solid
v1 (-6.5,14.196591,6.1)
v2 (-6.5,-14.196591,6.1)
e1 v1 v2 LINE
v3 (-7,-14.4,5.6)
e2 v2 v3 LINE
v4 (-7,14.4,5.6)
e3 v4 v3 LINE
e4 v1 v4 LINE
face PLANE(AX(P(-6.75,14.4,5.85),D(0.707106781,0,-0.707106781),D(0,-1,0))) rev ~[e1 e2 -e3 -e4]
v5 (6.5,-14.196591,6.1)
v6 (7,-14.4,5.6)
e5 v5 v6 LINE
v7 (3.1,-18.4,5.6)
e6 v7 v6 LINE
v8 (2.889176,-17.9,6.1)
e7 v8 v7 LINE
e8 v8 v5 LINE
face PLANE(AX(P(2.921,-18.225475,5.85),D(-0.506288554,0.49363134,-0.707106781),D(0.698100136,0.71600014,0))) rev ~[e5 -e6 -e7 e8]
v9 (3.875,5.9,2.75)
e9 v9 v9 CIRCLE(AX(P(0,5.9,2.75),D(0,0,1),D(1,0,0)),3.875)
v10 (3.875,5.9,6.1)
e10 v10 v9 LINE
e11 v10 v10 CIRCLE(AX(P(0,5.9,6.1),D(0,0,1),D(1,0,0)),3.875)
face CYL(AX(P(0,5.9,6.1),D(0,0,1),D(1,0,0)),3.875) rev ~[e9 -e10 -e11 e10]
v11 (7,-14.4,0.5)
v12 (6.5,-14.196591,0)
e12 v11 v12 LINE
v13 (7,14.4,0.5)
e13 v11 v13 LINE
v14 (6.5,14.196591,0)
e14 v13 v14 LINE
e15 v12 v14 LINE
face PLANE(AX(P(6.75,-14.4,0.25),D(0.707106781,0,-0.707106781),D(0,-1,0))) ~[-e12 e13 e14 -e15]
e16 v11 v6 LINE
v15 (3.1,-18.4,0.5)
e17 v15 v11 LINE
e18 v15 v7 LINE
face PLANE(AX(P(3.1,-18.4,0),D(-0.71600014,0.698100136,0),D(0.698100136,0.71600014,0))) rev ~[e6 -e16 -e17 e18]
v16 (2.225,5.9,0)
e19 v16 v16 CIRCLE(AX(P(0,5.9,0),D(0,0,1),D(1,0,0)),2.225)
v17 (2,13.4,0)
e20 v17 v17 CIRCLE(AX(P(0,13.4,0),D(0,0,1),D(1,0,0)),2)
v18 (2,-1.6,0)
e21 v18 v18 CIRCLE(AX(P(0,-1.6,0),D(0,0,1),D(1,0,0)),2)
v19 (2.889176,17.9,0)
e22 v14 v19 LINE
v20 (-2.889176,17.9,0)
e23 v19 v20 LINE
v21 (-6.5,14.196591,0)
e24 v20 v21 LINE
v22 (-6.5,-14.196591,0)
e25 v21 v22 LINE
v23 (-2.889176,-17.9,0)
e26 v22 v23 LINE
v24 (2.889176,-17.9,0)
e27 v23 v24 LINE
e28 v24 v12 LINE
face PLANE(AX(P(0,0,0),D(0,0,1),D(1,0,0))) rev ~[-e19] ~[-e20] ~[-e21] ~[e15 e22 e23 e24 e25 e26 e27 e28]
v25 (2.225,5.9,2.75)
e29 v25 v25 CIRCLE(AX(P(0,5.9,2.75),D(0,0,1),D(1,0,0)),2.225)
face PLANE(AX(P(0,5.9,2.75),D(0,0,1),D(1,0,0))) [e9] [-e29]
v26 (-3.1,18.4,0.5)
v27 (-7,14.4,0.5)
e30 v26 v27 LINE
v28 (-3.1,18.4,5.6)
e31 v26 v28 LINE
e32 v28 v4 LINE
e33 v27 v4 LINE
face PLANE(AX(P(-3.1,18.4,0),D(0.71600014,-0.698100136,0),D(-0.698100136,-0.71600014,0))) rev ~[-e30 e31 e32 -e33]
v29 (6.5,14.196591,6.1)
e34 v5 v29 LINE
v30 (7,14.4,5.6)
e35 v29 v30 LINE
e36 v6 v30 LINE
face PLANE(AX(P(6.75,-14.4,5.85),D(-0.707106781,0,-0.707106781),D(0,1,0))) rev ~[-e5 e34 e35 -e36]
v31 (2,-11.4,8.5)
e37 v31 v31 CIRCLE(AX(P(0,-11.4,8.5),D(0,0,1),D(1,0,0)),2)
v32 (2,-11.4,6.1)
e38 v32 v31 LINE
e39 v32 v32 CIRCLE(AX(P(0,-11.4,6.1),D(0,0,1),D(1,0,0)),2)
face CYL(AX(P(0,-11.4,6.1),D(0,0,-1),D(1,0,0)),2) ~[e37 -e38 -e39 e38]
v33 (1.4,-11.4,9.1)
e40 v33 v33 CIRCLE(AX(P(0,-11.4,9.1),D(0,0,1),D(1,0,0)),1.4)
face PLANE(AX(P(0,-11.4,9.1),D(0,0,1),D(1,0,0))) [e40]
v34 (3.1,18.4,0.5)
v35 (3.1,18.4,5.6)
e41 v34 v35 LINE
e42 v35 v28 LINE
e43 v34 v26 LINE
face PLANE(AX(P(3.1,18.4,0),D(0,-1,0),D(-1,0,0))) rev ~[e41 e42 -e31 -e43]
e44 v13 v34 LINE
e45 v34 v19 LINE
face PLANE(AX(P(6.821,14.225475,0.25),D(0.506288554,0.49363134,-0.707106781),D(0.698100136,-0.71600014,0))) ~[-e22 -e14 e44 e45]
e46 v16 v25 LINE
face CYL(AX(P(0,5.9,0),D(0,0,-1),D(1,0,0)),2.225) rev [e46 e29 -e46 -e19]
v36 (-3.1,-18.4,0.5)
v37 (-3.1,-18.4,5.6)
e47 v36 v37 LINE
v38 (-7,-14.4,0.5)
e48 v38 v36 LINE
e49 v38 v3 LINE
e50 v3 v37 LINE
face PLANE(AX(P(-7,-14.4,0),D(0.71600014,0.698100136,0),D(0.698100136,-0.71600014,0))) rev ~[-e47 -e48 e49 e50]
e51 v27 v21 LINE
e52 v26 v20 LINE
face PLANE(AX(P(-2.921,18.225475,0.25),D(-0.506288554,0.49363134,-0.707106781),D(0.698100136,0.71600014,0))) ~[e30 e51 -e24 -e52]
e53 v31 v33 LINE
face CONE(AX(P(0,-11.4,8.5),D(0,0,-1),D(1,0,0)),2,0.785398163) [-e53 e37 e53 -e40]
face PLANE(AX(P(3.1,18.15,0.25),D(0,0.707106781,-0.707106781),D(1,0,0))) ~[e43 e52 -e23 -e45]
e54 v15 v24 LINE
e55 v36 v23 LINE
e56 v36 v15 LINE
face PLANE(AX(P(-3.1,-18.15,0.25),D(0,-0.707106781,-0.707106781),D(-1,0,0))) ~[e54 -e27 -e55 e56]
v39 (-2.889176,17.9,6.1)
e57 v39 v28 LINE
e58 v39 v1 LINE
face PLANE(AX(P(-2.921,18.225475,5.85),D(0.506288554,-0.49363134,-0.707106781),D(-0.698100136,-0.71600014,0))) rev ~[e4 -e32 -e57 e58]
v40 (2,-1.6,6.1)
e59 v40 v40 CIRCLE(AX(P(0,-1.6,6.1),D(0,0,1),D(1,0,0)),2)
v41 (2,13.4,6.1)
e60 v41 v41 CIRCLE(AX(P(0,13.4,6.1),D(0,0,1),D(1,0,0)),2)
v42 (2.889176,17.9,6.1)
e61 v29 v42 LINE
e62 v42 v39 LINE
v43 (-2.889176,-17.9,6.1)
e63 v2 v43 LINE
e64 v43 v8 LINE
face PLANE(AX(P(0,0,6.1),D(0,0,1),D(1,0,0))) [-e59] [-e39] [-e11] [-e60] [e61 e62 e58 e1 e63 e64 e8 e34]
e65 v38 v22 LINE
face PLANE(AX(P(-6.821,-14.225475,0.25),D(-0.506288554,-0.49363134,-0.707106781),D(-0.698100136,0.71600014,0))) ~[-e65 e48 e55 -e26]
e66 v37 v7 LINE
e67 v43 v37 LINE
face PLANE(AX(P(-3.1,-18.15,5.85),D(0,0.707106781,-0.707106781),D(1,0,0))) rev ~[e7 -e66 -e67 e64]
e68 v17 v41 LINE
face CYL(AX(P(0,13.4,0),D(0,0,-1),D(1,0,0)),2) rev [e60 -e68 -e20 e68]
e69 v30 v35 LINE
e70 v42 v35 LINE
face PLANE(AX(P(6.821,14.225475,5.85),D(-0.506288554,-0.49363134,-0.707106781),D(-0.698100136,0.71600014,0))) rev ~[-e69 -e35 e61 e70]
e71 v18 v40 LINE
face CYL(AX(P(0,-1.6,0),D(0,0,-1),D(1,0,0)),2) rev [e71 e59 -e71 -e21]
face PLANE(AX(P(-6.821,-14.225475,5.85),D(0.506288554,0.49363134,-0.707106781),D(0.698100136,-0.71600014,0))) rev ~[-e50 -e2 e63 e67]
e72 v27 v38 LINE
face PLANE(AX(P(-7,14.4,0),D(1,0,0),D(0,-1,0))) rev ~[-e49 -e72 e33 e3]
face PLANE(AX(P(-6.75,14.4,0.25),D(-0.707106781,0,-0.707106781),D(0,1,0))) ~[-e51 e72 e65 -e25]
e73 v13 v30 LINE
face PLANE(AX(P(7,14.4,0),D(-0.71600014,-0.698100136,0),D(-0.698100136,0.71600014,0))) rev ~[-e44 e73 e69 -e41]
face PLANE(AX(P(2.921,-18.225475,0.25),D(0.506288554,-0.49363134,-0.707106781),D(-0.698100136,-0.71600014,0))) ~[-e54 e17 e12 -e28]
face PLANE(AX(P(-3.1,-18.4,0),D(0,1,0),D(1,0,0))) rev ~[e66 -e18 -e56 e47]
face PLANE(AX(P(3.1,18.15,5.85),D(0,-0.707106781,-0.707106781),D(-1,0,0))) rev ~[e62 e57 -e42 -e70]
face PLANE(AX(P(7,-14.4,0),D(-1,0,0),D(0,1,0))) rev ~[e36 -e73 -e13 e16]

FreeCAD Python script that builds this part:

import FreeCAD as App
import Part
import Sketcher

V = App.Vector
Q = App.Units.Quantity


def edges_at(feature, points):
    """Names of the edges that pass closest to the given points."""
    edges = feature.Shape.Edges
    near = lambda p: min(range(len(edges)), key=lambda i: edges[i].distToShape(Part.Vertex(*p))[0])
    return sorted({f"Edge{near(p) + 1}" for p in points})


def add_polygon(sketch, points):
    """Adds a closed chain of lines whose ends are joined by coincident constraints."""
    first, n = sketch.GeometryCount, len(points)
    for a, b in zip(points, points[1:] + points[:1]):
        sketch.addGeometry(Part.LineSegment(App.Vector(*a, 0), App.Vector(*b, 0)), False)
    for i in range(n):
        sketch.addConstraint(Sketcher.Constraint("Coincident", first + i, 2, first + (i + 1) % n, 1))

doc = App.newDocument("Part")
body = doc.addObject("PartDesign::Body", "Body")

# Sketch on XY plane
sketch1 = body.newObject("Sketcher::SketchObject", "Sketch")
sketch1.AttachmentSupport = (doc.getObject("XY_Plane"), [""])
sketch1.MapMode = "FlatFace"
add_polygon(sketch1, [(-7, 14.4), (-7, -14.4), (-3.1, -18.4), (3.1, -18.4), (7, -14.4), (7, 14.4), (3.1, 18.4), (-3.1, 18.4)])  # lines 0-7
sketch1.addGeometry(Part.Circle(V(0, -1.6, 0), V(0, 0, 1), 2), False)  # 8
sketch1.addGeometry(Part.Circle(V(0, 5.9, 0), V(0, 0, 1), 2.225), False)  # 9
sketch1.addGeometry(Part.Circle(V(0, 13.4, 0), V(0, 0, 1), 2), False)  # 10
sketch1.addConstraint(Sketcher.Constraint("Vertical", 0))
sketch1.addConstraint(Sketcher.Constraint("Horizontal", 2))
sketch1.addConstraint(Sketcher.Constraint("Vertical", 4))
sketch1.addConstraint(Sketcher.Constraint("Horizontal", 6))
sketch1.addConstraint(Sketcher.Constraint("Equal", 8, 10))
sketch1.addConstraint(Sketcher.Constraint("Symmetric", 0, 2, 4, 2, -1, 1))
sketch1.addConstraint(Sketcher.Constraint("Symmetric", 1, 2, 5, 2, -1, 1))
sketch1.addConstraint(Sketcher.Constraint("PointOnObject", 8, 3, -2))
sketch1.addConstraint(Sketcher.Constraint("PointOnObject", 9, 3, -2))
sketch1.addConstraint(Sketcher.Constraint("PointOnObject", 10, 3, -2))
sketch1.addConstraint(Sketcher.Constraint("Parallel", 3, 7))
sketch1.addConstraint(Sketcher.Constraint("Horizontal", 0, 2, 3, 2))
sketch1.addConstraint(Sketcher.Constraint("Horizontal", 4, 2, 7, 2))
sketch1.addConstraint(Sketcher.Constraint("Vertical", 2, 2, 5, 2))
sketch1.addConstraint(Sketcher.Constraint("Diameter", 8, Q("4 mm")))
sketch1.addConstraint(Sketcher.Constraint("Diameter", 9, Q("4.45 mm")))
sketch1.addConstraint(Sketcher.Constraint("DistanceX", 2, 1, 2, 2, Q("6.2 mm")))
sketch1.addConstraint(Sketcher.Constraint("DistanceY", 0, 2, 0, 1, Q("28.8 mm")))
sketch1.addConstraint(Sketcher.Constraint("DistanceX", 0, 2, -1, 1, Q("7 mm")))
sketch1.addConstraint(Sketcher.Constraint("DistanceY", 8, 3, 10, 3, Q("15 mm")))
sketch1.addConstraint(Sketcher.Constraint("DistanceY", 1, 2, 0, 2, Q("4 mm")))
sketch1.addConstraint(Sketcher.Constraint("DistanceY", 10, 3, 4, 2, Q("1 mm")))
sketch1.addConstraint(Sketcher.Constraint("DistanceY", -1, 1, 9, 3, Q("5.9 mm")))
pad1 = body.newObject("PartDesign::Pad", "Pad")
pad1.Profile = sketch1
pad1.Length = 6.1

# Sketch on XY plane
sketch2 = body.newObject("Sketcher::SketchObject", "Sketch001")
sketch2.AttachmentSupport = (doc.getObject("XY_Plane"), [""])
sketch2.MapMode = "FlatFace"
sketch2.AttachmentOffset = App.Placement(V(0, 0, 6.1), App.Rotation())
sketch2.addGeometry(Part.Circle(V(0, 5.9, 0), V(0, 0, 1), 3.875), False)
sketch2.addGeometry(Part.Circle(V(0, 5.9, 0), V(0, 0, 1), 2.225), False)
sketch2.addConstraint(Sketcher.Constraint("Coincident", 1, 3, 0, 3))
sketch2.addConstraint(Sketcher.Constraint("PointOnObject", 0, 3, -2))
sketch2.addConstraint(Sketcher.Constraint("Diameter", 0, Q("7.75 mm")))
sketch2.addConstraint(Sketcher.Constraint("Diameter", 1, Q("4.45 mm")))
sketch2.addConstraint(Sketcher.Constraint("DistanceY", -1, 1, 0, 3, Q("5.9 mm")))
pocket1 = body.newObject("PartDesign::Pocket", "Pocket")
pocket1.Profile = sketch2
pocket1.Length = 3.35

# Sketch on XY plane
sketch3 = body.newObject("Sketcher::SketchObject", "Sketch002")
sketch3.AttachmentSupport = (doc.getObject("XY_Plane"), [""])
sketch3.MapMode = "FlatFace"
sketch3.AttachmentOffset = App.Placement(V(0, 0, 6.1), App.Rotation())
sketch3.addGeometry(Part.Circle(V(0, -11.4, 0), V(0, 0, 1), 2), False)
sketch3.addConstraint(Sketcher.Constraint("PointOnObject", 0, 3, -2))
sketch3.addConstraint(Sketcher.Constraint("Diameter", 0, Q("4 mm")))
sketch3.addConstraint(Sketcher.Constraint("DistanceY", 0, 3, -1, 1, Q("11.4 mm")))
pad2 = body.newObject("PartDesign::Pad", "Pad001")
pad2.Profile = sketch3
pad2.Length = 3
doc.recompute()

chamfer = body.newObject("PartDesign::Chamfer", "Chamfer")
chamfer.Base = (pad2, edges_at(pad2, [(-2, -11.4, 9.1)]))
chamfer.Size = 0.6
doc.recompute()

chamfer2 = body.newObject("PartDesign::Chamfer", "Chamfer001")
chamfer2.Base = (chamfer, edges_at(chamfer, [
    (-7, 0, 0),
    (-5.05, -16.4, 0),
    (0, -18.4, 0),
    (5.05, -16.4, 0),
    (7, 0, 0),
    (5.05, 16.4, 0),
    (0, 18.4, 0),
    (-5.05, 16.4, 0),
    (5.05, -16.4, 6.1),
    (0, -18.4, 6.1),
    (-5.05, -16.4, 6.1),
    (-7, 0, 6.1),
    (-5.05, 16.4, 6.1),
    (0, 18.4, 6.1),
    (5.05, 16.4, 6.1),
    (7, 0, 6.1),
]))
chamfer2.Size = 0.5

doc.recompute()
